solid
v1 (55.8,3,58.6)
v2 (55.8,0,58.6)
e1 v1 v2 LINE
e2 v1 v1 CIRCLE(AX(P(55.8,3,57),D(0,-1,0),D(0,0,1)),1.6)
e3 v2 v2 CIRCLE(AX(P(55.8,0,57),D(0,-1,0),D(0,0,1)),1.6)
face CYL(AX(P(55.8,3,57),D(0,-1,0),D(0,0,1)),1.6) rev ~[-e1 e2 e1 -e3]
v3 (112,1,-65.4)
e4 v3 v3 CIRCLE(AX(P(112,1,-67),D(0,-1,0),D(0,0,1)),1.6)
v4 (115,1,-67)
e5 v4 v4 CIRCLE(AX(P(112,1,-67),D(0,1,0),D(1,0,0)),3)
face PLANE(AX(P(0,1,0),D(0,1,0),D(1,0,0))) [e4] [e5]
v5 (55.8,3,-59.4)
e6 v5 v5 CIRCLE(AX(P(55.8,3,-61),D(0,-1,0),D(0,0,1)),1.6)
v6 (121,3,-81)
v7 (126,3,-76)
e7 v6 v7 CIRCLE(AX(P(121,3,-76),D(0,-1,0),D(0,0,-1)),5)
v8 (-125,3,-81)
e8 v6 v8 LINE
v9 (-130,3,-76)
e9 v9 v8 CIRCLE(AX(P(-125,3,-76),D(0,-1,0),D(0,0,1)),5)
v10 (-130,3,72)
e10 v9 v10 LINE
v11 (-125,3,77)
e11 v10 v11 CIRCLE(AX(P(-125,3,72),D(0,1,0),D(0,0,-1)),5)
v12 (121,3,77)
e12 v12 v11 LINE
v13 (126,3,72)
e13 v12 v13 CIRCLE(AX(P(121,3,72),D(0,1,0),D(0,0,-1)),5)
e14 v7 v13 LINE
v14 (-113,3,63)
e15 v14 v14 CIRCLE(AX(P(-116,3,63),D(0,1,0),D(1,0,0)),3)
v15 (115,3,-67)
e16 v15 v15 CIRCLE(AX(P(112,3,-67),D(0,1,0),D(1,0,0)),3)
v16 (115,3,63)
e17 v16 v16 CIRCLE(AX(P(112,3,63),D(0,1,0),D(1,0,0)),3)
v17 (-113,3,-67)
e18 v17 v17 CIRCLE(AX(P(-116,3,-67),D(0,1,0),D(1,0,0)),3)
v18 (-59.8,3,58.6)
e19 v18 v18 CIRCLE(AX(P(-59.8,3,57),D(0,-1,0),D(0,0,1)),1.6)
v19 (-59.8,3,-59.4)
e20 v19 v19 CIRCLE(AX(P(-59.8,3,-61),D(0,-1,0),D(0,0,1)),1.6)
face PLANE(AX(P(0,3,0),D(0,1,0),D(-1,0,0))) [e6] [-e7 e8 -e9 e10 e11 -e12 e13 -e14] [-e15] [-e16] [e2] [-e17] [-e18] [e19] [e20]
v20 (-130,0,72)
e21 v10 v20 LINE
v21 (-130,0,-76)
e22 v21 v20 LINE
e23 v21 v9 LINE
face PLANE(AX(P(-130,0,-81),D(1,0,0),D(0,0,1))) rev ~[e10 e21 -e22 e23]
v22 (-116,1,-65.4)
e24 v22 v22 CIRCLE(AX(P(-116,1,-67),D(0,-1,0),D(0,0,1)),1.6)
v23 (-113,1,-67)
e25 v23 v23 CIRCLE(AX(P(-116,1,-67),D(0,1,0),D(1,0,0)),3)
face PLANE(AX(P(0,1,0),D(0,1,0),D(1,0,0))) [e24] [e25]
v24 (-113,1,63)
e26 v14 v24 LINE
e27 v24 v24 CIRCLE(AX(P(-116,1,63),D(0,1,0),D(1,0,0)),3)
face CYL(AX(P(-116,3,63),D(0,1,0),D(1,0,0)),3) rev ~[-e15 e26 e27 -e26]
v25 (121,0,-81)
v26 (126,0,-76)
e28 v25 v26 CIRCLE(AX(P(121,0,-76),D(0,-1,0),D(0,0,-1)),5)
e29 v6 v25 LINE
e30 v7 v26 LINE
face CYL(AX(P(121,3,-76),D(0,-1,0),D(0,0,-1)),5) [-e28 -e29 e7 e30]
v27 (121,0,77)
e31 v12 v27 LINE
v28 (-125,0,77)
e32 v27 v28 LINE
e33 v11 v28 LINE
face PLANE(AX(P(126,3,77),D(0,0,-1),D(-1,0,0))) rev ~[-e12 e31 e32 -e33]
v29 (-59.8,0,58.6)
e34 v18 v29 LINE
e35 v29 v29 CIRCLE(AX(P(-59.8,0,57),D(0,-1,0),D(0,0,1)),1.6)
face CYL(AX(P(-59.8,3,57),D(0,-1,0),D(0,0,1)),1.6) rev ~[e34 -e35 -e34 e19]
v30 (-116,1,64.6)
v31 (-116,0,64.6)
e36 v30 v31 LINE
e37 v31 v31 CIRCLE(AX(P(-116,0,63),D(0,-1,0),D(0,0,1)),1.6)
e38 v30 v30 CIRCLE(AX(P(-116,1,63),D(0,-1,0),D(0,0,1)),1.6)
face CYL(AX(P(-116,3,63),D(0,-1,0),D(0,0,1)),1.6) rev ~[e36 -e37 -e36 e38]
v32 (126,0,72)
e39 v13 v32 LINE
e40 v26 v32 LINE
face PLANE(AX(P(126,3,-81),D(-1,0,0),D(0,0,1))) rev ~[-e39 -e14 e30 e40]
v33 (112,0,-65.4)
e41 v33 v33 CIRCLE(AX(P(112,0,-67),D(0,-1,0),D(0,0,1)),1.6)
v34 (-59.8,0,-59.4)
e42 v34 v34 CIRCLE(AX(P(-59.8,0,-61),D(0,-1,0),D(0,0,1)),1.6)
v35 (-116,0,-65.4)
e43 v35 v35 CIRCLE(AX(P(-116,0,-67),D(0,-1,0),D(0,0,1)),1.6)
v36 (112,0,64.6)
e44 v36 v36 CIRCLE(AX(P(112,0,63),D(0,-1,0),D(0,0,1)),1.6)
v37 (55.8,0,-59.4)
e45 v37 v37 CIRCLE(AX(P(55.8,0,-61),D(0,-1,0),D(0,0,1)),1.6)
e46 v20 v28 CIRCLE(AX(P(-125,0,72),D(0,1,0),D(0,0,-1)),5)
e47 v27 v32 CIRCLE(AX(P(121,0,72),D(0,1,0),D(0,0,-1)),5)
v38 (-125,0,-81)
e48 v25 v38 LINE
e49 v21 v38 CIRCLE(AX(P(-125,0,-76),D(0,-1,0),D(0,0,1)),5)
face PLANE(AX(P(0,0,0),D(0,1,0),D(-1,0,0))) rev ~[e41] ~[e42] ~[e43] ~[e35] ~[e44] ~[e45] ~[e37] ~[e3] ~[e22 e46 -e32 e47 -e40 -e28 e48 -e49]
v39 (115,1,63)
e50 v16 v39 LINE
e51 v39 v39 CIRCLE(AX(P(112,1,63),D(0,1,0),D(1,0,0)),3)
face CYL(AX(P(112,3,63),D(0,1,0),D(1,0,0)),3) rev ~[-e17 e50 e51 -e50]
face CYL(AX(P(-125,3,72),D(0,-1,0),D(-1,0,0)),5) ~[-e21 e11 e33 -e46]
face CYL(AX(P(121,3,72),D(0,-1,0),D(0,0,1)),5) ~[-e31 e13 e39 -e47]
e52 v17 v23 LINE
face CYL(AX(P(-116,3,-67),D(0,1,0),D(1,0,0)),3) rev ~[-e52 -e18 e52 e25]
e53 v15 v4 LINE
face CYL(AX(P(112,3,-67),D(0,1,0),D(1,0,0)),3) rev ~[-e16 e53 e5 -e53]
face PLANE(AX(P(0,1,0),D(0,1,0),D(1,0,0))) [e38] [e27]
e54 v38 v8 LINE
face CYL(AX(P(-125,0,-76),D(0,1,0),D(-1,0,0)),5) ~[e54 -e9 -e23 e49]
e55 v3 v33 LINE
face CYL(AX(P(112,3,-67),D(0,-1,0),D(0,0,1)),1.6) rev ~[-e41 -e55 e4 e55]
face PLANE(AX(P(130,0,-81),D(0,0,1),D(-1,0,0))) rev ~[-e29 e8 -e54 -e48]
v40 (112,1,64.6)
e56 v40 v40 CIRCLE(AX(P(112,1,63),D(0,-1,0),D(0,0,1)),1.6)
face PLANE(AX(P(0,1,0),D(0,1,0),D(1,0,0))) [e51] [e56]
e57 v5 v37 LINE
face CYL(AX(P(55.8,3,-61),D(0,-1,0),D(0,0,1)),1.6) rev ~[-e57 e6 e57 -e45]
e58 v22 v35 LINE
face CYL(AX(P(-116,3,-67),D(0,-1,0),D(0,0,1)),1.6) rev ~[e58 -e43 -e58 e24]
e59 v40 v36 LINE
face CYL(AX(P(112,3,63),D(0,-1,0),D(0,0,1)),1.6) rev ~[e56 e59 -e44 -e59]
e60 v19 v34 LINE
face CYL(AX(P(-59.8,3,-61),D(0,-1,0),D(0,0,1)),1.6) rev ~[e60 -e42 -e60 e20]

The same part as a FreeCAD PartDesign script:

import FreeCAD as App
import Part
import Sketcher

V = App.Vector
Q = App.Units.Quantity


def edges_at(feature, points):
    """Names of the edges that pass closest to the given points."""
    edges = feature.Shape.Edges
    near = lambda p: min(range(len(edges)), key=lambda i: edges[i].distToShape(Part.Vertex(*p))[0])
    return sorted({f"Edge{near(p) + 1}" for p in points})

doc = App.newDocument("Part")
body = doc.addObject("PartDesign::Body", "Body")

# Sketch on XZ plane
sketch1 = body.newObject("Sketcher::SketchObject", "Sketch")
sketch1.AttachmentSupport = (doc.getObject("XZ_Plane"), [""])
sketch1.MapMode = "FlatFace"
sketch1.addGeometry([
    Part.LineSegment(V(-130, -81, 0), V(-130, 81, 0)),
    Part.LineSegment(V(-130, 81, 0), V(130, 81, 0)),
    Part.LineSegment(V(130, 81, 0), V(130, -81, 0)),
    Part.LineSegment(V(130, -81, 0), V(-130, -81, 0)),
], False)
sketch1.addConstraint([
    Sketcher.Constraint("Coincident", 0, 2, 1, 1),
    Sketcher.Constraint("Coincident", 1, 2, 2, 1),
    Sketcher.Constraint("Coincident", 2, 2, 3, 1),
    Sketcher.Constraint("Coincident", 3, 2, 0, 1),
    Sketcher.Constraint("Vertical", 0),
    Sketcher.Constraint("Horizontal", 1),
    Sketcher.Constraint("Vertical", 2),
    Sketcher.Constraint("Horizontal", 3),
    Sketcher.Constraint("Symmetric", 0, 2, 2, 2, -1, 1),
    Sketcher.Constraint("DistanceX", 1, 1, 1, 2, Q("260 mm")),
    Sketcher.Constraint("DistanceY", 0, 1, 0, 2, Q("162 mm")),
])
pad1 = body.newObject("PartDesign::Pad", "Pad")
pad1.Profile = sketch1
pad1.Length = 3
pad1.Reversed = True

# Sketch on XZ plane
sketch2 = body.newObject("Sketcher::SketchObject", "Sketch001")
sketch2.AttachmentSupport = (doc.getObject("XZ_Plane"), [""])
sketch2.MapMode = "FlatFace"
sketch2.AttachmentOffset = App.Placement(V(0, 0, -3), App.Rotation())
sketch2.addGeometry([
    Part.Circle(V(-116, -67, 0), V(0, 0, 1), 1.6),
    Part.Circle(V(112, -67, 0), V(0, 0, 1), 1.6),
    Part.Circle(V(112, 63, 0), V(0, 0, 1), 1.6),
    Part.Circle(V(-116, 63, 0), V(0, 0, 1), 1.6),
], False)
sketch2.addConstraint([
    Sketcher.Constraint("Equal", 0, 1),
    Sketcher.Constraint("Equal", 1, 2),
    Sketcher.Constraint("Equal", 2, 3),
    Sketcher.Constraint("Horizontal", 0, 3, 1, 3),
    Sketcher.Constraint("Horizontal", 2, 3, 3, 3),
    Sketcher.Constraint("Vertical", 1, 3, 2, 3),
    Sketcher.Constraint("Vertical", 0, 3, 3, 3),
    Sketcher.Constraint("Diameter", 0, Q("3.2 mm")),
    Sketcher.Constraint("DistanceX", 0, 3, -1, 1, Q("116 mm")),
    Sketcher.Constraint("DistanceY", 0, 3, -1, 1, Q("67 mm")),
    Sketcher.Constraint("DistanceX", -1, 1, 1, 3, Q("112 mm")),
    Sketcher.Constraint("DistanceY", -1, 1, 2, 3, Q("63 mm")),
])
doc.recompute()
hole = body.newObject("PartDesign::Hole", "Hole")
hole.Profile = sketch2
hole.ThreadType = "None"
hole.Diameter = 3.2
hole.DepthType = "Dimension"
hole.Depth = 8
hole.DrillPoint = "Flat"
hole.Reversed = True

# Sketch on XZ plane
sketch3 = body.newObject("Sketcher::SketchObject", "Sketch002")
sketch3.AttachmentSupport = (doc.getObject("XZ_Plane"), [""])
sketch3.MapMode = "FlatFace"
sketch3.AttachmentOffset = App.Placement(V(0, 0, -3), App.Rotation())
sketch3.addGeometry([
    Part.LineSegment(V(130, 81, 0), V(130, -81, 0)),  # 0
    Part.LineSegment(V(130, -81, 0), V(126, -81, 0)),  # 1
    Part.LineSegment(V(126, -81, 0), V(126, 77, 0)),  # 2
    Part.LineSegment(V(126, 77, 0), V(-130, 77, 0)),  # 3
    Part.LineSegment(V(-130, 77, 0), V(-130, 81, 0)),  # 4
    Part.LineSegment(V(-130, 81, 0), V(130, 81, 0)),  # 5
], False)
sketch3.addConstraint([
    Sketcher.Constraint("Coincident", 0, 2, 1, 1),
    Sketcher.Constraint("Coincident", 1, 2, 2, 1),
    Sketcher.Constraint("Coincident", 2, 2, 3, 1),
    Sketcher.Constraint("Coincident", 3, 2, 4, 1),
    Sketcher.Constraint("Coincident", 4, 2, 5, 1),
    Sketcher.Constraint("Coincident", 5, 2, 0, 1),
    Sketcher.Constraint("Vertical", 0),
    Sketcher.Constraint("Horizontal", 1),
    Sketcher.Constraint("Vertical", 2),
    Sketcher.Constraint("Horizontal", 3),
    Sketcher.Constraint("Vertical", 4),
    Sketcher.Constraint("Horizontal", 5),
    Sketcher.Constraint("Symmetric", 0, 2, 4, 2, -1, 1),
    Sketcher.Constraint("Equal", 1, 4),
    Sketcher.Constraint("DistanceX", 1, 2, 1, 1, Q("4 mm")),
    Sketcher.Constraint("DistanceX", 3, 2, 3, 1, Q("256 mm")),
    Sketcher.Constraint("DistanceY", 0, 2, 0, 1, Q("162 mm")),
])
pocket1 = body.newObject("PartDesign::Pocket", "Pocket")
pocket1.Profile = sketch3
pocket1.Length = 10
pocket1.Reversed = True
doc.recompute()

fillet = body.newObject("PartDesign::Fillet", "Fillet")
fillet.Base = (pocket1, edges_at(pocket1, [
    (-130, 1.5, -81),
    (-130, 1.5, 77),
    (126, 1.5, -81),
    (126, 1.5, 77),
]))
fillet.Radius = 5

# Sketch on XZ plane
sketch4 = body.newObject("Sketcher::SketchObject", "Sketch003")
sketch4.AttachmentSupport = (doc.getObject("XZ_Plane"), [""])
sketch4.MapMode = "FlatFace"
sketch4.AttachmentOffset = App.Placement(V(0, 0, -3), App.Rotation())
sketch4.addGeometry([
    Part.Circle(V(-116, -67, 0), V(0, 0, 1), 3),
    Part.Circle(V(112, -67, 0), V(0, 0, 1), 3),
    Part.Circle(V(112, 63, 0), V(0, 0, 1), 3),
    Part.Circle(V(-116, 63, 0), V(0, 0, 1), 3),
], False)
sketch4.addConstraint([
    Sketcher.Constraint("Equal", 0, 1),
    Sketcher.Constraint("Equal", 1, 2),
    Sketcher.Constraint("Equal", 2, 3),
    Sketcher.Constraint("Horizontal", 0, 3, 1, 3),
    Sketcher.Constraint("Horizontal", 2, 3, 3, 3),
    Sketcher.Constraint("Vertical", 1, 3, 2, 3),
    Sketcher.Constraint("Vertical", 0, 3, 3, 3),
    Sketcher.Constraint("Diameter", 0, Q("6 mm")),
    Sketcher.Constraint("DistanceX", 0, 3, -1, 1, Q("116 mm")),
    Sketcher.Constraint("DistanceY", 0, 3, -1, 1, Q("67 mm")),
    Sketcher.Constraint("DistanceX", -1, 1, 1, 3, Q("112 mm")),
    Sketcher.Constraint("DistanceY", -1, 1, 2, 3, Q("63 mm")),
])
pocket2 = body.newObject("PartDesign::Pocket", "Pocket001")
pocket2.Profile = sketch4
pocket2.Length = 2
pocket2.Reversed = True

# Sketch on XZ plane
sketch5 = body.newObject("Sketcher::SketchObject", "Sketch004")
sketch5.AttachmentSupport = (doc.getObject("XZ_Plane"), [""])
sketch5.MapMode = "FlatFace"
sketch5.AttachmentOffset = App.Placement(V(0, 0, -3), App.Rotation())
sketch5.addGeometry([
    Part.Circle(V(-59.8, -61, 0), V(0, 0, 1), 1.6),
    Part.Circle(V(-59.8, 57, 0), V(0, 0, 1), 1.6),
    Part.Circle(V(55.8, -61, 0), V(0, 0, 1), 1.6),
    Part.Circle(V(55.8, 57, 0), V(0, 0, 1), 1.6),
], False)
sketch5.addConstraint([
    Sketcher.Constraint("Equal", 0, 1),
    Sketcher.Constraint("Equal", 1, 2),
    Sketcher.Constraint("Equal", 2, 3),
    Sketcher.Constraint("Horizontal", 0, 3, 2, 3),
    Sketcher.Constraint("Horizontal", 1, 3, 3, 3),
    Sketcher.Constraint("Vertical", 0, 3, 1, 3),
    Sketcher.Constraint("Vertical", 2, 3, 3, 3),
    Sketcher.Constraint("Diameter", 0, Q("3.2 mm")),
    Sketcher.Constraint("DistanceY", 0, 3, -1, 1, Q("61 mm")),
    Sketcher.Constraint("DistanceY", -1, 1, 1, 3, Q("57 mm")),
    Sketcher.Constraint("DistanceX", 0, 3, -1, 1, Q("59.8 mm")),
    Sketcher.Constraint("DistanceX", -1, 1, 2, 3, Q("55.8 mm")),
])
doc.recompute()
hole2 = body.newObject("PartDesign::Hole", "Hole001")
hole2.Profile = sketch5
hole2.ThreadType = "None"
hole2.Diameter = 3.2
hole2.DepthType = "Dimension"
hole2.Depth = 8
hole2.DrillPoint = "Flat"
hole2.Reversed = True

doc.recompute()
